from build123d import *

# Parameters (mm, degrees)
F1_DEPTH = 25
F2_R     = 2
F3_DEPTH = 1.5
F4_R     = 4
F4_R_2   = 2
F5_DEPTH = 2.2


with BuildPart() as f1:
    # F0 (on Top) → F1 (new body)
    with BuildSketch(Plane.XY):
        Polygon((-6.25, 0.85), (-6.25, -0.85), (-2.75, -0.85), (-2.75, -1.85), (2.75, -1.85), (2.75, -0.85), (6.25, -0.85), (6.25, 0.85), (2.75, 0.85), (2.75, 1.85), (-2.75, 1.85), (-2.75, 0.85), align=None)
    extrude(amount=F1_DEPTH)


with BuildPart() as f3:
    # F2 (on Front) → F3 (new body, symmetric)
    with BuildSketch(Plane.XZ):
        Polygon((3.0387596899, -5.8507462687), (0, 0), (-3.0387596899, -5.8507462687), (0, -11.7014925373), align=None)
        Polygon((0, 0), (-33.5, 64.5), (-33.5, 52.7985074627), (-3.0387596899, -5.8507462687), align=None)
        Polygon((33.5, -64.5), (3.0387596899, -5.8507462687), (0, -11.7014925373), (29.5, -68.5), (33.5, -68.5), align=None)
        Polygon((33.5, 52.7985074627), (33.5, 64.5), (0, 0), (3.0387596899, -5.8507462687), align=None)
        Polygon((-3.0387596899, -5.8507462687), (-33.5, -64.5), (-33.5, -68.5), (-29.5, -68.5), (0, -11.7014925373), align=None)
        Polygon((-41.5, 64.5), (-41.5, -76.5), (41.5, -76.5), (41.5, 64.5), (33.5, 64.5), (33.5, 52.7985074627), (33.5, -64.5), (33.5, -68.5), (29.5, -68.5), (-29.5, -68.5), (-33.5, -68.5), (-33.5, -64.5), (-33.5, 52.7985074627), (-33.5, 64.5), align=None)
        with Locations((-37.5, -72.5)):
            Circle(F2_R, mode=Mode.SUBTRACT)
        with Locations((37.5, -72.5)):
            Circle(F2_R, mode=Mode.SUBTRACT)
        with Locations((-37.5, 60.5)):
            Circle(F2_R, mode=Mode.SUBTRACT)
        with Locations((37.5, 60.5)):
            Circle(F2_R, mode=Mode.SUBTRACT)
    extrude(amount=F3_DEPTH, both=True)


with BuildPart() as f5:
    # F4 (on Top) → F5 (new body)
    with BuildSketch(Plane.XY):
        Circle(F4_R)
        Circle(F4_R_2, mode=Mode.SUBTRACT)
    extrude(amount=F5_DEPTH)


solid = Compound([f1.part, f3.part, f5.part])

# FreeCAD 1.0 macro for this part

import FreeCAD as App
import Part
import Sketcher
Q = App.Units.Quantity

doc = App.newDocument("Part")
body = doc.addObject("PartDesign::Body", "Body")

# Sketch on XY plane
sketch1 = body.newObject("Sketcher::SketchObject", "Sketch")
sketch1.AttachmentSupport = (doc.getObject("XY_Plane"), [""])
sketch1.MapMode = "FlatFace"
sketch1.addGeometry([
    Part.LineSegment(App.Vector(-6.2, 0.8, 0), App.Vector(-6.2, -0.8, 0)),  # 0
    Part.LineSegment(App.Vector(-6.2, -0.8, 0), App.Vector(-2.8, -0.8, 0)),  # 1
    Part.LineSegment(App.Vector(-2.8, -0.8, 0), App.Vector(-2.8, -1.9, 0)),  # 2
    Part.LineSegment(App.Vector(-2.8, -1.9, 0), App.Vector(2.8, -1.9, 0)),  # 3
    Part.LineSegment(App.Vector(2.8, -1.9, 0), App.Vector(2.8, -0.8, 0)),  # 4
    Part.LineSegment(App.Vector(2.8, -0.8, 0), App.Vector(6.2, -0.8, 0)),  # 5
    Part.LineSegment(App.Vector(6.2, -0.8, 0), App.Vector(6.2, 0.8, 0)),  # 6
    Part.LineSegment(App.Vector(6.2, 0.8, 0), App.Vector(2.8, 0.8, 0)),  # 7
    Part.LineSegment(App.Vector(2.8, 0.8, 0), App.Vector(2.8, 1.9, 0)),  # 8
    Part.LineSegment(App.Vector(2.8, 1.9, 0), App.Vector(-2.8, 1.9, 0)),  # 9
    Part.LineSegment(App.Vector(-2.8, 1.9, 0), App.Vector(-2.8, 0.8, 0)),  # 10
    Part.LineSegment(App.Vector(-2.8, 0.8, 0), App.Vector(-6.2, 0.8, 0)),  # 11
], False)
sketch1.addConstraint([
    Sketcher.Constraint("Coincident", 0, 2, 1, 1),
    Sketcher.Constraint("Coincident", 1, 2, 2, 1),
    Sketcher.Constraint("Coincident", 2, 2, 3, 1),
    Sketcher.Constraint("Coincident", 3, 2, 4, 1),
    Sketcher.Constraint("Coincident", 4, 2, 5, 1),
    Sketcher.Constraint("Coincident", 5, 2, 6, 1),
    Sketcher.Constraint("Coincident", 6, 2, 7, 1),
    Sketcher.Constraint("Coincident", 7, 2, 8, 1),
    Sketcher.Constraint("Coincident", 8, 2, 9, 1),
    Sketcher.Constraint("Coincident", 9, 2, 10, 1),
    Sketcher.Constraint("Coincident", 10, 2, 11, 1),
    Sketcher.Constraint("Coincident", 11, 2, 0, 1),
    Sketcher.Constraint("Vertical", 0),
    Sketcher.Constraint("Horizontal", 1),
    Sketcher.Constraint("Vertical", 2),
    Sketcher.Constraint("Horizontal", 3),
    Sketcher.Constraint("Vertical", 4),
    Sketcher.Constraint("Horizontal", 5),
    Sketcher.Constraint("Vertical", 6),
    Sketcher.Constraint("Horizontal", 7),
    Sketcher.Constraint("Vertical", 8),
    Sketcher.Constraint("Horizontal", 9),
    Sketcher.Constraint("Vertical", 10),
    Sketcher.Constraint("Horizontal", 11),
    Sketcher.Constraint("Symmetric", 0, 2, 6, 2, -1, 1),
    Sketcher.Constraint("Symmetric", 2, 2, 8, 2, -1, 1),
    Sketcher.Constraint("Symmetric", 4, 2, 10, 2, -1, 1),
    Sketcher.Constraint("Symmetric", 1, 2, 4, 2, -2),
    Sketcher.Constraint("DistanceY", 2, 2, 2, 1, Q("1 mm")),
    Sketcher.Constraint("DistanceX", 1, 1, 1, 2, Q("3.5 mm")),
    Sketcher.Constraint("DistanceX", 3, 1, 3, 2, Q("5.5 mm")),
    Sketcher.Constraint("DistanceY", 0, 2, 0, 1, Q("1.7 mm")),
])
pad1 = body.newObject("PartDesign::Pad", "Pad")
pad1.Profile = sketch1
pad1.Length = 25
body2 = doc.addObject("PartDesign::Body", "Body001")

# Sketch on XZ plane
sketch2 = body2.newObject("Sketcher::SketchObject", "Sketch001")
sketch2.AttachmentSupport = (doc.getObject("XZ_Plane001"), [""])
sketch2.MapMode = "FlatFace"
sketch2.addGeometry([
    Part.LineSegment(App.Vector(0, 0, 0), App.Vector(-33.5, 64.5, 0)),  # 0
    Part.LineSegment(App.Vector(-33.5, 64.5, 0), App.Vector(-41.5, 64.5, 0)),  # 1
    Part.LineSegment(App.Vector(-41.5, 64.5, 0), App.Vector(-41.5, -76.5, 0)),  # 2
    Part.LineSegment(App.Vector(-41.5, -76.5, 0), App.Vector(41.5, -76.5, 0)),  # 3
    Part.LineSegment(App.Vector(41.5, -76.5, 0), App.Vector(41.5, 64.5, 0)),  # 4
    Part.LineSegment(App.Vector(41.5, 64.5, 0), App.Vector(33.5, 64.5, 0)),  # 5
    Part.LineSegment(App.Vector(33.5, 64.5, 0), App.Vector(0, 0, 0)),  # 6
    Part.Circle(App.Vector(-37.5, -72.5, 0), App.Vector(0, 0, 1), 2),  # 7
    Part.Circle(App.Vector(37.5, -72.5, 0), App.Vector(0, 0, 1), 2),  # 8
    Part.LineSegment(App.Vector(-29.5, -68.5, 0), App.Vector(0, -11.7, 0)),  # 9
    Part.LineSegment(App.Vector(0, -11.7, 0), App.Vector(29.5, -68.5, 0)),  # 10
    Part.LineSegment(App.Vector(29.5, -68.5, 0), App.Vector(-29.5, -68.5, 0)),  # 11
    Part.LineSegment(App.Vector(-33.5, 52.8, 0), App.Vector(-3, -5.9, 0)),  # 12
    Part.LineSegment(App.Vector(-3, -5.9, 0), App.Vector(-33.5, -64.5, 0)),  # 13
    Part.LineSegment(App.Vector(-33.5, -64.5, 0), App.Vector(-33.5, 52.8, 0)),  # 14
    Part.Circle(App.Vector(-37.5, 60.5, 0), App.Vector(0, 0, 1), 2),  # 15
    Part.LineSegment(App.Vector(33.5, -64.5, 0), App.Vector(3, -5.9, 0)),  # 16
    Part.LineSegment(App.Vector(3, -5.9, 0), App.Vector(33.5, 52.8, 0)),  # 17
    Part.LineSegment(App.Vector(33.5, 52.8, 0), App.Vector(33.5, -64.5, 0)),  # 18
    Part.Circle(App.Vector(37.5, 60.5, 0), App.Vector(0, 0, 1), 2),  # 19
], False)
sketch2.addConstraint([
    Sketcher.Constraint("Coincident", 0, 2, 1, 1),
    Sketcher.Constraint("Coincident", 1, 2, 2, 1),
    Sketcher.Constraint("Coincident", 2, 2, 3, 1),
    Sketcher.Constraint("Coincident", 3, 2, 4, 1),
    Sketcher.Constraint("Coincident", 4, 2, 5, 1),
    Sketcher.Constraint("Coincident", 5, 2, 6, 1),
    Sketcher.Constraint("Coincident", 6, 2, 0, 1),
    Sketcher.Constraint("Coincident", 9, 2, 10, 1),
    Sketcher.Constraint("Coincident", 10, 2, 11, 1),
    Sketcher.Constraint("Coincident", 11, 2, 9, 1),
    Sketcher.Constraint("Coincident", 12, 2, 13, 1),
    Sketcher.Constraint("Coincident", 13, 2, 14, 1),
    Sketcher.Constraint("Coincident", 14, 2, 12, 1),
    Sketcher.Constraint("Coincident", 16, 2, 17, 1),
    Sketcher.Constraint("Coincident", 17, 2, 18, 1),
    Sketcher.Constraint("Coincident", 18, 2, 16, 1),
    Sketcher.Constraint("Horizontal", 1),
    Sketcher.Constraint("Vertical", 2),
    Sketcher.Constraint("Horizontal", 3),
    Sketcher.Constraint("Vertical", 4),
    Sketcher.Constraint("Horizontal", 5),
    Sketcher.Constraint("Horizontal", 11),
    Sketcher.Constraint("Vertical", 14),
    Sketcher.Constraint("Vertical", 18),
    Sketcher.Constraint("Coincident", 6, 2, -1, 1),
    Sketcher.Constraint("Equal", 7, 8),
    Sketcher.Constraint("Equal", 8, 15),
    Sketcher.Constraint("Equal", 15, 19),
    Sketcher.Constraint("Symmetric", 5, 2, 13, 2, -1, 1),
    Sketcher.Constraint("Symmetric", 0, 2, 18, 2, -1, 1),
    Sketcher.Constraint("Symmetric", 7, 3, 8, 3, -2),
    Sketcher.Constraint("Symmetric", 15, 3, 19, 3, -2),
    Sketcher.Constraint("Symmetric", 1, 2, 4, 2, -2),
    Sketcher.Constraint("Symmetric", 12, 2, 16, 2, -2),
    Sketcher.Constraint("Symmetric", 14, 2, 17, 2, -2),
    Sketcher.Constraint("PointOnObject", 9, 2, -2),
    Sketcher.Constraint("Parallel", 6, 9),
    Sketcher.Constraint("Parallel", 0, 10),
    Sketcher.Constraint("Parallel", 10, 12),
    Sketcher.Constraint("Parallel", 9, 13),
    Sketcher.Constraint("Vertical", 7, 3, 15, 3),
    Sketcher.Constraint("Diameter", 7, Q("4 mm")),
    Sketcher.Constraint("DistanceX", 1, 2, 1, 1, Q("8 mm")),
    Sketcher.Constraint("DistanceX", 3, 1, 3, 2, Q("83 mm")),
    Sketcher.Constraint("DistanceX", 11, 2, 11, 1, Q("59 mm")),
    Sketcher.Constraint("DistanceY", 2, 2, 2, 1, Q("141 mm")),
    Sketcher.Constraint("DistanceX", 7, 3, 8, 3, Q("75 mm")),
    Sketcher.Constraint("DistanceY", 7, 3, 15, 3, Q("133 mm")),
    Sketcher.Constraint("DistanceY", 15, 3, 0, 2, Q("4 mm")),
    Sketcher.Constraint("DistanceY", 8, 3, 10, 2, Q("4 mm")),
    Sketcher.Constraint("DistanceY", 11, 2, 13, 2, Q("4 mm")),
    Sketcher.Constraint("DistanceY", 14, 1, 14, 2, Q("117.298507 mm")),
])
pad2 = body2.newObject("PartDesign::Pad", "Pad001")
pad2.Profile = sketch2
pad2.Length = 3
pad2.Midplane = True
body3 = doc.addObject("PartDesign::Body", "Body002")

# Sketch on XY plane
sketch3 = body3.newObject("Sketcher::SketchObject", "Sketch002")
sketch3.AttachmentSupport = (doc.getObject("XY_Plane002"), [""])
sketch3.MapMode = "FlatFace"
sketch3.addGeometry([
    Part.Circle(App.Vector(0, 0, 0), App.Vector(0, 0, 1), 4),
    Part.Circle(App.Vector(0, 0, 0), App.Vector(0, 0, 1), 2),
], False)
sketch3.addConstraint([
    Sketcher.Constraint("Coincident", 0, 3, -1, 1),
    Sketcher.Constraint("Coincident", 1, 3, -1, 1),
    Sketcher.Constraint("Diameter", 0, Q("8 mm")),
    Sketcher.Constraint("Diameter", 1, Q("4 mm")),
])
pad3 = body3.newObject("PartDesign::Pad", "Pad002")
pad3.Profile = sketch3
pad3.Length = 2.2

doc.recompute()
